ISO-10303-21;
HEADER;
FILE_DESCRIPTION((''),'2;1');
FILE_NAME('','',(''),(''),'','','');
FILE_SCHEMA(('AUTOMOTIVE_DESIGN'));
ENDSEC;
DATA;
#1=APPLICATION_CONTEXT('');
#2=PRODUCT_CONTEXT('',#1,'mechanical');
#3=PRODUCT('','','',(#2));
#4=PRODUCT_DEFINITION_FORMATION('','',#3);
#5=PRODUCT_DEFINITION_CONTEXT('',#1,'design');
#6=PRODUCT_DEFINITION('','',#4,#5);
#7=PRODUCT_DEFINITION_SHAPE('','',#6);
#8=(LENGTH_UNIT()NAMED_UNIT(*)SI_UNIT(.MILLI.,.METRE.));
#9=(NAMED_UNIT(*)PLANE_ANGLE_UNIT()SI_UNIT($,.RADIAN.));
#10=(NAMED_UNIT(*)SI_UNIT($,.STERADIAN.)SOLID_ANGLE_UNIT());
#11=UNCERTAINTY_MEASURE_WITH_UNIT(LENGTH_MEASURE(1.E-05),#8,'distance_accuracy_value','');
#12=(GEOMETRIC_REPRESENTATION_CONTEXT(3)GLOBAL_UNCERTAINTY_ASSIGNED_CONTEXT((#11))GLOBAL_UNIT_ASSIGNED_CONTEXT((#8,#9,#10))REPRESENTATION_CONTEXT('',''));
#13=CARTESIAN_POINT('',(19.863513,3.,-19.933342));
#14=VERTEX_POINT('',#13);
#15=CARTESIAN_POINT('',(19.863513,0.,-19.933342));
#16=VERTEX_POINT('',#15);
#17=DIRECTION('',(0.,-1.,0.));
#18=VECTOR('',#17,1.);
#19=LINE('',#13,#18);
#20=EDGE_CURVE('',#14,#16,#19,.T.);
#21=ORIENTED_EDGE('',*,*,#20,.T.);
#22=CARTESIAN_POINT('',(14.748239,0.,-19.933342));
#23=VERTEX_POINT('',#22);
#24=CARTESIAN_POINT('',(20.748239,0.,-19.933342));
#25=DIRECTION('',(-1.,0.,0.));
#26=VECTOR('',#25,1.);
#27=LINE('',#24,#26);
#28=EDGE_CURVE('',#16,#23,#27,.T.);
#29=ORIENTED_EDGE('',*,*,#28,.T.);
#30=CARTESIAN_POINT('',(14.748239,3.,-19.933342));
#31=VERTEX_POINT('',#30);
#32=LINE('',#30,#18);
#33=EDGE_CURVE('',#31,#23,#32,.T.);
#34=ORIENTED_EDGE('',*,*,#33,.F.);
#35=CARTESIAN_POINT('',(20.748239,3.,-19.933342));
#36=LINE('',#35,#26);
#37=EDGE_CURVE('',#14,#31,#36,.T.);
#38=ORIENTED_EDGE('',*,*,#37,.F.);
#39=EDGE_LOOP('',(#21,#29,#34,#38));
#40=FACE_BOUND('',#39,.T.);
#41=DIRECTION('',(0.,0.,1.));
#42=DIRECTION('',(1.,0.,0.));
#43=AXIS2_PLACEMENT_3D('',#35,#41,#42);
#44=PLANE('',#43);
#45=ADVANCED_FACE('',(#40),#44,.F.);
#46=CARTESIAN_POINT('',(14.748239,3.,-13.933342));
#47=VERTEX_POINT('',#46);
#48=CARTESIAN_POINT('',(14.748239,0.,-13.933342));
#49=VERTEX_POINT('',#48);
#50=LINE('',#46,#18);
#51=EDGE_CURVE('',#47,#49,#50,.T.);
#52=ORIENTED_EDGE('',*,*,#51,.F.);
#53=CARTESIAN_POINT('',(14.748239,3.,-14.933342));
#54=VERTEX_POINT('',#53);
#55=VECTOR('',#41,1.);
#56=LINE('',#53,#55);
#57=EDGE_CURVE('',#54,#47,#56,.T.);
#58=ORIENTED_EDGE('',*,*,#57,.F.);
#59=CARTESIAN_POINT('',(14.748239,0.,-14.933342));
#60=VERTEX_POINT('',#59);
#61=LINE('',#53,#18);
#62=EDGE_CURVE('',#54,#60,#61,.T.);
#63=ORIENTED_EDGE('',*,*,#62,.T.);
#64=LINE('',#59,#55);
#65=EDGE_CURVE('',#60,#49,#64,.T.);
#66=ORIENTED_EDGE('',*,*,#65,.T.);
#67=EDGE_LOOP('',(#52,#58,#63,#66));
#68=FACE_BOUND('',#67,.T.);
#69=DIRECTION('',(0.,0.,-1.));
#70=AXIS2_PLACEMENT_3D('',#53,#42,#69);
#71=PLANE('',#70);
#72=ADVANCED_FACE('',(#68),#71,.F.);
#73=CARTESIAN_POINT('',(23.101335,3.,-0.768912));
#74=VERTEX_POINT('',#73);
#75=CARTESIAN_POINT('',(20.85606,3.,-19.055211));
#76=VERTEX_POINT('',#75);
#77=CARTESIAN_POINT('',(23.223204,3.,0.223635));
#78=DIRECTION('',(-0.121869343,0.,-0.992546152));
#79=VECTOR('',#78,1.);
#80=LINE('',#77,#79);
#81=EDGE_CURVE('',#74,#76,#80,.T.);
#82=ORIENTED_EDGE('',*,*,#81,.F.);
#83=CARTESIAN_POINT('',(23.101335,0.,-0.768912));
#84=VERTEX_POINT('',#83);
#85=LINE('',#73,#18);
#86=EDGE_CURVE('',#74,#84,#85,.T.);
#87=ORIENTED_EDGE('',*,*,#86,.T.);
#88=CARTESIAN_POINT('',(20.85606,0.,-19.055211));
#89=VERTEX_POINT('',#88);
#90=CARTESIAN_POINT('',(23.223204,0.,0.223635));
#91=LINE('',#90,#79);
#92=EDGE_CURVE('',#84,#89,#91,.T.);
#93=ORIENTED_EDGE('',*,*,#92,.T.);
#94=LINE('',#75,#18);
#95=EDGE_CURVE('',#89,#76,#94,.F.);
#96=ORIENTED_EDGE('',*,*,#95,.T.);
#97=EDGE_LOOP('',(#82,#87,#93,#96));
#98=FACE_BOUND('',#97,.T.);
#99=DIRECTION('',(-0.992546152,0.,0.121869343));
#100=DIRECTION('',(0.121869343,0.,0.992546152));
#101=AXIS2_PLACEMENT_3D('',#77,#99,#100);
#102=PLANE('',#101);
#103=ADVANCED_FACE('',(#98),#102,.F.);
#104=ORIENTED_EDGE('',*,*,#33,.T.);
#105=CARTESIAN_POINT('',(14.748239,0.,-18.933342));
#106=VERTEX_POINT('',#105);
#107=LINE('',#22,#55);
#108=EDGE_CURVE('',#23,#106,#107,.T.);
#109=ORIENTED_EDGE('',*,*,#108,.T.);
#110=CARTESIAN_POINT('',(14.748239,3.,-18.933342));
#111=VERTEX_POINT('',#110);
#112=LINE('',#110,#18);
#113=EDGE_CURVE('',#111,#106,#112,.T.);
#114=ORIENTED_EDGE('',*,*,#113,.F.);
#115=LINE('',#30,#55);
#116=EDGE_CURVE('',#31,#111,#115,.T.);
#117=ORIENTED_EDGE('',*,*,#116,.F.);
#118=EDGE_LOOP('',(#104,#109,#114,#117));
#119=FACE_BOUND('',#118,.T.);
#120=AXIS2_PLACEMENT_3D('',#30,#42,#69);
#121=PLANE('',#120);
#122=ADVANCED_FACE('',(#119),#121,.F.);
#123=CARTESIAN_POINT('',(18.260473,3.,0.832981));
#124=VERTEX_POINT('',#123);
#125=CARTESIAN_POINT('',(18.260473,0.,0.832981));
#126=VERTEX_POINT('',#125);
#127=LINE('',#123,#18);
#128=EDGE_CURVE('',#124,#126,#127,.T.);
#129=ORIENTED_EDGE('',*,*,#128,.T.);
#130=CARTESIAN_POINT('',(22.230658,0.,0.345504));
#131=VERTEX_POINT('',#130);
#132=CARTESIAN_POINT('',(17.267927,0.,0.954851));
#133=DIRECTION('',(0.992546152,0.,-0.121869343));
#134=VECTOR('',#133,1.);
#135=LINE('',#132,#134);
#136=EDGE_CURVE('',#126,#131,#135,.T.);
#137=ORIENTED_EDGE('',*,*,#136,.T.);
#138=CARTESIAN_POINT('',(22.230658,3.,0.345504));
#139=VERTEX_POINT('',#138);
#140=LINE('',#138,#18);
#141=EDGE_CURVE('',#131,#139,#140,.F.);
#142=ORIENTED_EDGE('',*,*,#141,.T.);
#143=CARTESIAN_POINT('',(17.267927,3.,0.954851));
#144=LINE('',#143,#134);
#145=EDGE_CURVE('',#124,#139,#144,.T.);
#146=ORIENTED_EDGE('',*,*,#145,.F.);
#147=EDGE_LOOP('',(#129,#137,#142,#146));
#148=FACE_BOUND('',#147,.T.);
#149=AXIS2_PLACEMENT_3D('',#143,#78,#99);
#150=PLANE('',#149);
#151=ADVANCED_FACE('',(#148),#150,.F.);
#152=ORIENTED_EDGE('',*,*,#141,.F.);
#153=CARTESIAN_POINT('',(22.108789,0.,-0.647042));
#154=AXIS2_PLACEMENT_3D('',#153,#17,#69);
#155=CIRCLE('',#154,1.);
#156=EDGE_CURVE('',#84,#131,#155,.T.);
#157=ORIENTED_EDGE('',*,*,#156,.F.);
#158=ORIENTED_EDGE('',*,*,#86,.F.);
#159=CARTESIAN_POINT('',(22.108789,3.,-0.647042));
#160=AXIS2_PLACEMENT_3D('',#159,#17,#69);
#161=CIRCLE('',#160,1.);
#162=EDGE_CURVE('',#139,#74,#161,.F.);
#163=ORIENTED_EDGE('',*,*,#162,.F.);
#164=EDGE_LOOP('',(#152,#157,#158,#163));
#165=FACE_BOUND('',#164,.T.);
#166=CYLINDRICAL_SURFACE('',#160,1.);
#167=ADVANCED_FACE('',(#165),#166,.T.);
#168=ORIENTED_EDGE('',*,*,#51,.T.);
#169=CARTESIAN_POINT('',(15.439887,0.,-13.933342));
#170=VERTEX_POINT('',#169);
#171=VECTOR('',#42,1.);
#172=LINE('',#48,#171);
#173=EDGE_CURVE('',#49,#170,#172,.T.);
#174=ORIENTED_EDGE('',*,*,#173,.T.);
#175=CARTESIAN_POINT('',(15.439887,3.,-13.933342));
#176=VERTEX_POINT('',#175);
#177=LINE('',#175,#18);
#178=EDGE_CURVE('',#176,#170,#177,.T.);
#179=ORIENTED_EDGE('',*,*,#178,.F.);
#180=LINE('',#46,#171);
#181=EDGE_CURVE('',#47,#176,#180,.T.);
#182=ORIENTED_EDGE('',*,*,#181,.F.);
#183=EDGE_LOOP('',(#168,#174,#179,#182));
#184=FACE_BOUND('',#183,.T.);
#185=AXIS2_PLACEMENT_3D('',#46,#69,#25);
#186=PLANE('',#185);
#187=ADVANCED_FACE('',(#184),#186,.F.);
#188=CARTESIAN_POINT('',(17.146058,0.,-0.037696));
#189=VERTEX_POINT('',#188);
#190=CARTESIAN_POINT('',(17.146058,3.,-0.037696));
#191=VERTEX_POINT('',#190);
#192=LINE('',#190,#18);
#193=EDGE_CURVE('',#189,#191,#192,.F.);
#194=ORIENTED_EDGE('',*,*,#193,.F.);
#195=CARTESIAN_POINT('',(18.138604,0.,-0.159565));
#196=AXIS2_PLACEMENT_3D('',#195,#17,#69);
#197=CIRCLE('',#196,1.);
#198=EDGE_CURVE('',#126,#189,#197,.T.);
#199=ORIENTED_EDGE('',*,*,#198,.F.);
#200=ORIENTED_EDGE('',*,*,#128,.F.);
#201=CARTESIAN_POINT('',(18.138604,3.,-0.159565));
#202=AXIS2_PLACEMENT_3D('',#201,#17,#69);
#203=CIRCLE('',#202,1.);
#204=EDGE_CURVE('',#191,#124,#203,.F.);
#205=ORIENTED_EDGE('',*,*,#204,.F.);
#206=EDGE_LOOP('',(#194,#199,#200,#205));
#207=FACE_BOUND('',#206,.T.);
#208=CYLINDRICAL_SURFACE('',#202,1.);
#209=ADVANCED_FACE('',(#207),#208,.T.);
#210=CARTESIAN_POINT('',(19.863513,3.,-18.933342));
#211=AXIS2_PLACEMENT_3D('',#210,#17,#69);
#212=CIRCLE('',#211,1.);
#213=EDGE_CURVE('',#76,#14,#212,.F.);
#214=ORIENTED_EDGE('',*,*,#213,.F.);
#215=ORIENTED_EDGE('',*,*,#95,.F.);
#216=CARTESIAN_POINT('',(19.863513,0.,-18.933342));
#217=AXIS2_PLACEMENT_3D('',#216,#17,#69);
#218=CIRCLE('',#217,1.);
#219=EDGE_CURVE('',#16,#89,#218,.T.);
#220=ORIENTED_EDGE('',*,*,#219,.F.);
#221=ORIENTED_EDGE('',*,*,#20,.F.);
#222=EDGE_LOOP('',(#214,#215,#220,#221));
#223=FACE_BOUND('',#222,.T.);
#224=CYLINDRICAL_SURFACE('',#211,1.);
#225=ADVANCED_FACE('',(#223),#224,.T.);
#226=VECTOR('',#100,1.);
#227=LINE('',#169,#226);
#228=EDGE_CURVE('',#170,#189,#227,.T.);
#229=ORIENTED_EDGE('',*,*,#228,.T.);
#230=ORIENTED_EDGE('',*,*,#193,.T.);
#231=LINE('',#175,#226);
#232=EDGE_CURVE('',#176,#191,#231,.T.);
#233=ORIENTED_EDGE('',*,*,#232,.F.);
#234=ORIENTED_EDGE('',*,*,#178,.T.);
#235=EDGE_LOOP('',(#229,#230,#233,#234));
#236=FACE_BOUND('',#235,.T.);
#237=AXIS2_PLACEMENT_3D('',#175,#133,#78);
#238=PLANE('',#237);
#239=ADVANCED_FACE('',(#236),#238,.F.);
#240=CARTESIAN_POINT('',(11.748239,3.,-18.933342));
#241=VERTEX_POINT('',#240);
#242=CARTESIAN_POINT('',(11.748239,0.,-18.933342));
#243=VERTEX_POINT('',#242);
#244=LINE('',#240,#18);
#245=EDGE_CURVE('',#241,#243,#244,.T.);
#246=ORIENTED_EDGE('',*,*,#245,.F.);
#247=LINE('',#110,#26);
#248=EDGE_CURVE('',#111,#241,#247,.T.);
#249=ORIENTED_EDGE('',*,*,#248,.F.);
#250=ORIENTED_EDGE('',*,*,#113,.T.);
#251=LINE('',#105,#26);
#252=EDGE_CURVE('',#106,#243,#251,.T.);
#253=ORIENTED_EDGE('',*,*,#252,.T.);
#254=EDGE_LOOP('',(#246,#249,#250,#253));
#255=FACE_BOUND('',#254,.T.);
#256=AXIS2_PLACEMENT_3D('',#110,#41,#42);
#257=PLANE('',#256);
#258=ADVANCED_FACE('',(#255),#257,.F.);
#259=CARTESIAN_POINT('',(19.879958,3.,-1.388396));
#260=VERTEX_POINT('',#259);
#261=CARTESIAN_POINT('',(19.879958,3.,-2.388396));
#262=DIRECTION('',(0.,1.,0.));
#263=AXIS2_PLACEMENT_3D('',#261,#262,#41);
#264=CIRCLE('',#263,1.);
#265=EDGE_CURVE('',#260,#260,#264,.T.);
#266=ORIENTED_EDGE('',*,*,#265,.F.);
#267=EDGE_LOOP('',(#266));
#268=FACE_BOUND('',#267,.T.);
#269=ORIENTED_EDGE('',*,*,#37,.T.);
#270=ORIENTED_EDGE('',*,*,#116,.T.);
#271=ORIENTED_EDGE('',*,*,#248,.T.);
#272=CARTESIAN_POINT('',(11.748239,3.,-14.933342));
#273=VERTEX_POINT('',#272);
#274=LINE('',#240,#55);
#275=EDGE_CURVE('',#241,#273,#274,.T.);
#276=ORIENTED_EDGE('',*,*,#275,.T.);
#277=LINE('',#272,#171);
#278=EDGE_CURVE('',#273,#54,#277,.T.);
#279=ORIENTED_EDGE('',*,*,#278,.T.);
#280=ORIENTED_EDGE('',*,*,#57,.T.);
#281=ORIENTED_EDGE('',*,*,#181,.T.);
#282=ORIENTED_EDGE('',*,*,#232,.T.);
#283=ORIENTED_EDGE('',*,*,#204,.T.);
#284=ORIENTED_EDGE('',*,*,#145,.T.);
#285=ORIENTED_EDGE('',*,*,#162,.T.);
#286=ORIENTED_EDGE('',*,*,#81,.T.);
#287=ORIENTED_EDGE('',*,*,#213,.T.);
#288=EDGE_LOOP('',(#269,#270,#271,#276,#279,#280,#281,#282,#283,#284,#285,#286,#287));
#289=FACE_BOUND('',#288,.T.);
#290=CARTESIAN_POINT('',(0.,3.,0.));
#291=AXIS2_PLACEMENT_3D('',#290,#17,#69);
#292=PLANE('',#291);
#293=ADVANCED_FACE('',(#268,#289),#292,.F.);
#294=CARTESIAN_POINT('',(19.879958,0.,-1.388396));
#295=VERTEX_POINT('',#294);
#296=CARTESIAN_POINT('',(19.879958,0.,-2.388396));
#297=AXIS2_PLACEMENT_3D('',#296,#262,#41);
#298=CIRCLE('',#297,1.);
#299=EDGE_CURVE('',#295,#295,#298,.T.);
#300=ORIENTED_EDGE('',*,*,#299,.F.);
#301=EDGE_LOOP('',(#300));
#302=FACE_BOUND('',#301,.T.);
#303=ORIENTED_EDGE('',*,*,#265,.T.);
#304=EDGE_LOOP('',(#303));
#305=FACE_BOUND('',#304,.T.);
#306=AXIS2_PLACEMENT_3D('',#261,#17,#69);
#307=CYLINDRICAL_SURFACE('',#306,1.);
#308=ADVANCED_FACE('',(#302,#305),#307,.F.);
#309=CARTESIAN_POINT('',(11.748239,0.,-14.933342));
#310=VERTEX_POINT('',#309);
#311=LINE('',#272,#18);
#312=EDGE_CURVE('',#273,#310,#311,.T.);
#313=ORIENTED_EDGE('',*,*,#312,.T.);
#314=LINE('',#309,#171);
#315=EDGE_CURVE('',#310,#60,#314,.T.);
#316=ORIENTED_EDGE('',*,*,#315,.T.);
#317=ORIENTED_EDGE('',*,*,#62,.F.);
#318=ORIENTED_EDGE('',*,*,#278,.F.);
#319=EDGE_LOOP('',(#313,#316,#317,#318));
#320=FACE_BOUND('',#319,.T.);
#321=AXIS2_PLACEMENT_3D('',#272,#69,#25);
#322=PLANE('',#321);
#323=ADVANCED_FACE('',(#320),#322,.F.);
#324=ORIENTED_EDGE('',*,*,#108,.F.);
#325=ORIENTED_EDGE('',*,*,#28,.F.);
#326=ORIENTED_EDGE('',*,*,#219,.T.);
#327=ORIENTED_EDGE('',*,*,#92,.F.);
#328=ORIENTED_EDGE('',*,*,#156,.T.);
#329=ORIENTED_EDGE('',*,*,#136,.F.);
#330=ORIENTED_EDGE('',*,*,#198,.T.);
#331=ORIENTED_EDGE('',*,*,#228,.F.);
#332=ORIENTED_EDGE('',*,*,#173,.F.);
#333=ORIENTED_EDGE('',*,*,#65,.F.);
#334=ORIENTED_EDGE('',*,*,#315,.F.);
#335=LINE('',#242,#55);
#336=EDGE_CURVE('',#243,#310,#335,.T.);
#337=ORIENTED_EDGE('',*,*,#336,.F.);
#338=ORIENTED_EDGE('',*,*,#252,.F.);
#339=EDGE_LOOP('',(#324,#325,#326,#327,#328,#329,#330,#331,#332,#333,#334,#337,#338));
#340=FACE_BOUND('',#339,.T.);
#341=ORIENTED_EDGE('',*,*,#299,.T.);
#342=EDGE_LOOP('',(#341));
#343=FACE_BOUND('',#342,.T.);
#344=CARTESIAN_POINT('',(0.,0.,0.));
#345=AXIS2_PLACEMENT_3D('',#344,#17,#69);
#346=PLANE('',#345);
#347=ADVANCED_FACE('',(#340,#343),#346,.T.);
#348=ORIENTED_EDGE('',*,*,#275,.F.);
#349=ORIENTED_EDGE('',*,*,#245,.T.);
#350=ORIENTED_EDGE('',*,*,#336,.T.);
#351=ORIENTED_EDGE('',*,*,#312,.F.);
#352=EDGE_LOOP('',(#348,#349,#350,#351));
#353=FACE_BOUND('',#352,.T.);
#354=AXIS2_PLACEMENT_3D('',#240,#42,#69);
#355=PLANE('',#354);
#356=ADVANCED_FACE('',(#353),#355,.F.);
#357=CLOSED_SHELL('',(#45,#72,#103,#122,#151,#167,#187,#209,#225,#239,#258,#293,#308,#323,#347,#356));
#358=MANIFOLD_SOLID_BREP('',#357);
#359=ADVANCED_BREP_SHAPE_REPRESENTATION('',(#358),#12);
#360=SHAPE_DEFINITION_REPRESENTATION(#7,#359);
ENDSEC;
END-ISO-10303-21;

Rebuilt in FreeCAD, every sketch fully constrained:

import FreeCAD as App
import Part
import Sketcher
from FreeCAD import Vector
Q = App.Units.Quantity


def edges_at(feature, points):
    """Names of the edges that pass closest to the given points."""
    edges = feature.Shape.Edges
    near = lambda p: min(range(len(edges)), key=lambda i: edges[i].distToShape(Part.Vertex(*p))[0])
    return sorted({f"Edge{near(p) + 1}" for p in points})


def add_polygon(sketch, points):
    """Adds a closed chain of lines whose ends are joined by coincident constraints."""
    first, n = sketch.GeometryCount, len(points)
    for a, b in zip(points, points[1:] + points[:1]):
        sketch.addGeometry(Part.LineSegment(App.Vector(*a, 0), App.Vector(*b, 0)), False)
    for i in range(n):
        sketch.addConstraint(Sketcher.Constraint("Coincident", first + i, 2, first + (i + 1) % n, 1))

doc = App.newDocument("Part")
body = doc.addObject("PartDesign::Body", "Body")

# Sketch on XZ plane
sketch1 = body.newObject("Sketcher::SketchObject", "Sketch")
sketch1.AttachmentSupport = (doc.getObject("XZ_Plane"), [""])
sketch1.MapMode = "FlatFace"
add_polygon(sketch1, [(20.7, -19.9), (14.7, -19.9), (14.7, -18.9), (11.7, -18.9), (11.7, -14.9), (14.7, -14.9), (14.7, -13.9), (15.4, -13.9), (17.3, 1), (23.2, 0.2)])  # lines 0-9
sketch1.addGeometry(Part.Circle(Vector(19.9, -2.4, 0), Vector(0, 0, 1), 1), False)  # 10
sketch1.addConstraint([
    Sketcher.Constraint("Horizontal", 0),
    Sketcher.Constraint("Vertical", 1),
    Sketcher.Constraint("Horizontal", 2),
    Sketcher.Constraint("Vertical", 3),
    Sketcher.Constraint("Horizontal", 4),
    Sketcher.Constraint("Vertical", 5),
    Sketcher.Constraint("Horizontal", 6),
    Sketcher.Constraint("Perpendicular", 7, 8),
    Sketcher.Constraint("Perpendicular", 8, 9),
    Sketcher.Constraint("Vertical", 1, 2, 4, 2),
    Sketcher.Constraint("Equal", 1, 5),
    Sketcher.Constraint("Diameter", 10, Q("2 mm")),
    Sketcher.Constraint("DistanceX", 0, 2, 0, 1, Q("6 mm")),
    Sketcher.Constraint("DistanceX", 2, 2, 2, 1, Q("3 mm")),
    Sketcher.Constraint("DistanceY", 1, 1, 1, 2, Q("1 mm")),
    Sketcher.Constraint("DistanceY", 3, 1, 3, 2, Q("4 mm")),
    Sketcher.Constraint("Angle", 7, Q("83 deg")),
    Sketcher.Constraint("Distance", 7, Q("15 mm")),
    Sketcher.Constraint("Distance", 8, Q("6 mm")),
    Sketcher.Constraint("DistanceX", -1, 1, 0, 2, Q("14.748239 mm")),
    Sketcher.Constraint("DistanceY", 0, 2, -1, 1, Q("19.933342 mm")),
    Sketcher.Constraint("DistanceX", 0, 2, 10, 3, Q("5.131719 mm")),
    Sketcher.Constraint("DistanceY", 10, 3, 8, 2, Q("2.61203 mm")),
])
pad1 = body.newObject("PartDesign::Pad", "Pad")
pad1.Profile = sketch1
pad1.Length = 3
pad1.Reversed = True
doc.recompute()

fillet = body.newObject("PartDesign::Fillet", "Fillet")
fillet.Base = (pad1, edges_at(pad1, [(20.748, 1.5, -19.933), (23.223, 1.5, 0.224), (17.268, 1.5, 0.955)]))
fillet.Radius = 1

doc.recompute()
